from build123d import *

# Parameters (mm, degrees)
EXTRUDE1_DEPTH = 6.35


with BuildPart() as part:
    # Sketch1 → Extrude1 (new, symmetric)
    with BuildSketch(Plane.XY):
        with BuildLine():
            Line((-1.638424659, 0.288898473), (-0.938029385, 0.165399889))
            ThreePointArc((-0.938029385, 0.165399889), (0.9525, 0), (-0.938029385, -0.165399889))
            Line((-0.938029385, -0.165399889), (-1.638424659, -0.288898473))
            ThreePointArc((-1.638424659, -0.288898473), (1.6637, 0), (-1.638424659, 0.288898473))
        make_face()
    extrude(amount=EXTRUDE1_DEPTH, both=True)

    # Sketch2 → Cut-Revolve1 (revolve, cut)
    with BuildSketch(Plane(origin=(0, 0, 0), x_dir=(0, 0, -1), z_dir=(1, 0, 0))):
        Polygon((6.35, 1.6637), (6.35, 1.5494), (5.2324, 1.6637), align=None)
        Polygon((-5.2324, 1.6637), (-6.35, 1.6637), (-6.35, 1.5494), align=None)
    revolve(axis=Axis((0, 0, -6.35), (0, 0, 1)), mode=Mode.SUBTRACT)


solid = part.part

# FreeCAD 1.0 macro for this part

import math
import FreeCAD as App
import Part
import Sketcher
Q = App.Units.Quantity


def add_polygon(sketch, points):
    """Adds a closed chain of lines whose ends are joined by coincident constraints."""
    first, n = sketch.GeometryCount, len(points)
    for a, b in zip(points, points[1:] + points[:1]):
        sketch.addGeometry(Part.LineSegment(App.Vector(*a, 0), App.Vector(*b, 0)), False)
    for i in range(n):
        sketch.addConstraint(Sketcher.Constraint("Coincident", first + i, 2, first + (i + 1) % n, 1))

doc = App.newDocument("Part")
body = doc.addObject("PartDesign::Body", "Body")

sketch1 = body.newObject("Sketcher::SketchObject", "Sketch")
sketch1.AttachmentSupport = (doc.getObject("XY_Plane"), [""])
sketch1.MapMode = "FlatFace"
sketch1.addGeometry([
    Part.LineSegment(App.Vector(-1.64, 0.29, 0), App.Vector(-0.94, 0.17, 0)),
    Part.ArcOfCircle(Part.Circle(App.Vector(0, 0, 0), App.Vector(0, 0, 1), 0.95), math.radians(-170), math.radians(170)),
    Part.LineSegment(App.Vector(-0.94, -0.17, 0), App.Vector(-1.64, -0.29, 0)),
    Part.ArcOfCircle(Part.Circle(App.Vector(0, 0, 0), App.Vector(0, 0, 1), 1.66), math.radians(-170), math.radians(170)),
], False)
sketch1.addConstraint([
    Sketcher.Constraint("Coincident", 0, 2, 1, 2),
    Sketcher.Constraint("Coincident", 1, 1, 2, 1),
    Sketcher.Constraint("Coincident", 2, 2, 3, 1),
    Sketcher.Constraint("Coincident", 3, 2, 0, 1),
    Sketcher.Constraint("Coincident", 1, 3, -1, 1),
    Sketcher.Constraint("Coincident", 3, 3, -1, 1),
    Sketcher.Constraint("Vertical", 0, 2, 1, 1),
    Sketcher.Constraint("Vertical", 2, 2, 3, 2),
    Sketcher.Constraint("Angle", 0, Q("-10 deg")),
    Sketcher.Constraint("Radius", 1, Q("0.0375 in")),
    Sketcher.Constraint("Radius", 3, Q("0.0655 in")),
    Sketcher.Constraint("DistanceY", -1, 1, 0, 2, 0.1654),
])
pad1 = body.newObject("PartDesign::Pad", "Pad")
pad1.Profile = sketch1
pad1.Length = Q("0.5 in")
pad1.Midplane = True

sketch2 = body.newObject("Sketcher::SketchObject", "Sketch001")
sketch2.AttachmentSupport = (doc.getObject("YZ_Plane"), [""])
sketch2.MapMode = "FlatFace"
add_polygon(sketch2, [(1.55, -6.35), (1.66, -6.35), (1.66, -5.23)])
add_polygon(sketch2, [(1.66, 5.23), (1.66, 6.35), (1.55, 6.35)])
sketch2.addConstraint([
    Sketcher.Constraint("Horizontal", 0),
    Sketcher.Constraint("Vertical", 1),
    Sketcher.Constraint("Vertical", 3),
    Sketcher.Constraint("Horizontal", 4),
    Sketcher.Constraint("Symmetric", 0, 2, 3, 2, -1),
    Sketcher.Constraint("Vertical", 2, 2, 4, 2),
    Sketcher.Constraint("Equal", 1, 3),
    Sketcher.Constraint("DistanceY", 0, 2, 3, 2, Q("0.5 in")),
    Sketcher.Constraint("DistanceY", 1, 1, 1, 2, Q("0.044 in")),
    Sketcher.Constraint("DistanceX", 0, 1, 0, 2, Q("0.0045 in")),
    Sketcher.Constraint("DistanceX", -1, 1, 2, 2, Q("0.061 in")),
])
groove = body.newObject("PartDesign::Groove", "Groove")
groove.Profile = sketch2
groove.ReferenceAxis = (sketch2, ["V_Axis"])
groove.Angle = 360

doc.recompute()
